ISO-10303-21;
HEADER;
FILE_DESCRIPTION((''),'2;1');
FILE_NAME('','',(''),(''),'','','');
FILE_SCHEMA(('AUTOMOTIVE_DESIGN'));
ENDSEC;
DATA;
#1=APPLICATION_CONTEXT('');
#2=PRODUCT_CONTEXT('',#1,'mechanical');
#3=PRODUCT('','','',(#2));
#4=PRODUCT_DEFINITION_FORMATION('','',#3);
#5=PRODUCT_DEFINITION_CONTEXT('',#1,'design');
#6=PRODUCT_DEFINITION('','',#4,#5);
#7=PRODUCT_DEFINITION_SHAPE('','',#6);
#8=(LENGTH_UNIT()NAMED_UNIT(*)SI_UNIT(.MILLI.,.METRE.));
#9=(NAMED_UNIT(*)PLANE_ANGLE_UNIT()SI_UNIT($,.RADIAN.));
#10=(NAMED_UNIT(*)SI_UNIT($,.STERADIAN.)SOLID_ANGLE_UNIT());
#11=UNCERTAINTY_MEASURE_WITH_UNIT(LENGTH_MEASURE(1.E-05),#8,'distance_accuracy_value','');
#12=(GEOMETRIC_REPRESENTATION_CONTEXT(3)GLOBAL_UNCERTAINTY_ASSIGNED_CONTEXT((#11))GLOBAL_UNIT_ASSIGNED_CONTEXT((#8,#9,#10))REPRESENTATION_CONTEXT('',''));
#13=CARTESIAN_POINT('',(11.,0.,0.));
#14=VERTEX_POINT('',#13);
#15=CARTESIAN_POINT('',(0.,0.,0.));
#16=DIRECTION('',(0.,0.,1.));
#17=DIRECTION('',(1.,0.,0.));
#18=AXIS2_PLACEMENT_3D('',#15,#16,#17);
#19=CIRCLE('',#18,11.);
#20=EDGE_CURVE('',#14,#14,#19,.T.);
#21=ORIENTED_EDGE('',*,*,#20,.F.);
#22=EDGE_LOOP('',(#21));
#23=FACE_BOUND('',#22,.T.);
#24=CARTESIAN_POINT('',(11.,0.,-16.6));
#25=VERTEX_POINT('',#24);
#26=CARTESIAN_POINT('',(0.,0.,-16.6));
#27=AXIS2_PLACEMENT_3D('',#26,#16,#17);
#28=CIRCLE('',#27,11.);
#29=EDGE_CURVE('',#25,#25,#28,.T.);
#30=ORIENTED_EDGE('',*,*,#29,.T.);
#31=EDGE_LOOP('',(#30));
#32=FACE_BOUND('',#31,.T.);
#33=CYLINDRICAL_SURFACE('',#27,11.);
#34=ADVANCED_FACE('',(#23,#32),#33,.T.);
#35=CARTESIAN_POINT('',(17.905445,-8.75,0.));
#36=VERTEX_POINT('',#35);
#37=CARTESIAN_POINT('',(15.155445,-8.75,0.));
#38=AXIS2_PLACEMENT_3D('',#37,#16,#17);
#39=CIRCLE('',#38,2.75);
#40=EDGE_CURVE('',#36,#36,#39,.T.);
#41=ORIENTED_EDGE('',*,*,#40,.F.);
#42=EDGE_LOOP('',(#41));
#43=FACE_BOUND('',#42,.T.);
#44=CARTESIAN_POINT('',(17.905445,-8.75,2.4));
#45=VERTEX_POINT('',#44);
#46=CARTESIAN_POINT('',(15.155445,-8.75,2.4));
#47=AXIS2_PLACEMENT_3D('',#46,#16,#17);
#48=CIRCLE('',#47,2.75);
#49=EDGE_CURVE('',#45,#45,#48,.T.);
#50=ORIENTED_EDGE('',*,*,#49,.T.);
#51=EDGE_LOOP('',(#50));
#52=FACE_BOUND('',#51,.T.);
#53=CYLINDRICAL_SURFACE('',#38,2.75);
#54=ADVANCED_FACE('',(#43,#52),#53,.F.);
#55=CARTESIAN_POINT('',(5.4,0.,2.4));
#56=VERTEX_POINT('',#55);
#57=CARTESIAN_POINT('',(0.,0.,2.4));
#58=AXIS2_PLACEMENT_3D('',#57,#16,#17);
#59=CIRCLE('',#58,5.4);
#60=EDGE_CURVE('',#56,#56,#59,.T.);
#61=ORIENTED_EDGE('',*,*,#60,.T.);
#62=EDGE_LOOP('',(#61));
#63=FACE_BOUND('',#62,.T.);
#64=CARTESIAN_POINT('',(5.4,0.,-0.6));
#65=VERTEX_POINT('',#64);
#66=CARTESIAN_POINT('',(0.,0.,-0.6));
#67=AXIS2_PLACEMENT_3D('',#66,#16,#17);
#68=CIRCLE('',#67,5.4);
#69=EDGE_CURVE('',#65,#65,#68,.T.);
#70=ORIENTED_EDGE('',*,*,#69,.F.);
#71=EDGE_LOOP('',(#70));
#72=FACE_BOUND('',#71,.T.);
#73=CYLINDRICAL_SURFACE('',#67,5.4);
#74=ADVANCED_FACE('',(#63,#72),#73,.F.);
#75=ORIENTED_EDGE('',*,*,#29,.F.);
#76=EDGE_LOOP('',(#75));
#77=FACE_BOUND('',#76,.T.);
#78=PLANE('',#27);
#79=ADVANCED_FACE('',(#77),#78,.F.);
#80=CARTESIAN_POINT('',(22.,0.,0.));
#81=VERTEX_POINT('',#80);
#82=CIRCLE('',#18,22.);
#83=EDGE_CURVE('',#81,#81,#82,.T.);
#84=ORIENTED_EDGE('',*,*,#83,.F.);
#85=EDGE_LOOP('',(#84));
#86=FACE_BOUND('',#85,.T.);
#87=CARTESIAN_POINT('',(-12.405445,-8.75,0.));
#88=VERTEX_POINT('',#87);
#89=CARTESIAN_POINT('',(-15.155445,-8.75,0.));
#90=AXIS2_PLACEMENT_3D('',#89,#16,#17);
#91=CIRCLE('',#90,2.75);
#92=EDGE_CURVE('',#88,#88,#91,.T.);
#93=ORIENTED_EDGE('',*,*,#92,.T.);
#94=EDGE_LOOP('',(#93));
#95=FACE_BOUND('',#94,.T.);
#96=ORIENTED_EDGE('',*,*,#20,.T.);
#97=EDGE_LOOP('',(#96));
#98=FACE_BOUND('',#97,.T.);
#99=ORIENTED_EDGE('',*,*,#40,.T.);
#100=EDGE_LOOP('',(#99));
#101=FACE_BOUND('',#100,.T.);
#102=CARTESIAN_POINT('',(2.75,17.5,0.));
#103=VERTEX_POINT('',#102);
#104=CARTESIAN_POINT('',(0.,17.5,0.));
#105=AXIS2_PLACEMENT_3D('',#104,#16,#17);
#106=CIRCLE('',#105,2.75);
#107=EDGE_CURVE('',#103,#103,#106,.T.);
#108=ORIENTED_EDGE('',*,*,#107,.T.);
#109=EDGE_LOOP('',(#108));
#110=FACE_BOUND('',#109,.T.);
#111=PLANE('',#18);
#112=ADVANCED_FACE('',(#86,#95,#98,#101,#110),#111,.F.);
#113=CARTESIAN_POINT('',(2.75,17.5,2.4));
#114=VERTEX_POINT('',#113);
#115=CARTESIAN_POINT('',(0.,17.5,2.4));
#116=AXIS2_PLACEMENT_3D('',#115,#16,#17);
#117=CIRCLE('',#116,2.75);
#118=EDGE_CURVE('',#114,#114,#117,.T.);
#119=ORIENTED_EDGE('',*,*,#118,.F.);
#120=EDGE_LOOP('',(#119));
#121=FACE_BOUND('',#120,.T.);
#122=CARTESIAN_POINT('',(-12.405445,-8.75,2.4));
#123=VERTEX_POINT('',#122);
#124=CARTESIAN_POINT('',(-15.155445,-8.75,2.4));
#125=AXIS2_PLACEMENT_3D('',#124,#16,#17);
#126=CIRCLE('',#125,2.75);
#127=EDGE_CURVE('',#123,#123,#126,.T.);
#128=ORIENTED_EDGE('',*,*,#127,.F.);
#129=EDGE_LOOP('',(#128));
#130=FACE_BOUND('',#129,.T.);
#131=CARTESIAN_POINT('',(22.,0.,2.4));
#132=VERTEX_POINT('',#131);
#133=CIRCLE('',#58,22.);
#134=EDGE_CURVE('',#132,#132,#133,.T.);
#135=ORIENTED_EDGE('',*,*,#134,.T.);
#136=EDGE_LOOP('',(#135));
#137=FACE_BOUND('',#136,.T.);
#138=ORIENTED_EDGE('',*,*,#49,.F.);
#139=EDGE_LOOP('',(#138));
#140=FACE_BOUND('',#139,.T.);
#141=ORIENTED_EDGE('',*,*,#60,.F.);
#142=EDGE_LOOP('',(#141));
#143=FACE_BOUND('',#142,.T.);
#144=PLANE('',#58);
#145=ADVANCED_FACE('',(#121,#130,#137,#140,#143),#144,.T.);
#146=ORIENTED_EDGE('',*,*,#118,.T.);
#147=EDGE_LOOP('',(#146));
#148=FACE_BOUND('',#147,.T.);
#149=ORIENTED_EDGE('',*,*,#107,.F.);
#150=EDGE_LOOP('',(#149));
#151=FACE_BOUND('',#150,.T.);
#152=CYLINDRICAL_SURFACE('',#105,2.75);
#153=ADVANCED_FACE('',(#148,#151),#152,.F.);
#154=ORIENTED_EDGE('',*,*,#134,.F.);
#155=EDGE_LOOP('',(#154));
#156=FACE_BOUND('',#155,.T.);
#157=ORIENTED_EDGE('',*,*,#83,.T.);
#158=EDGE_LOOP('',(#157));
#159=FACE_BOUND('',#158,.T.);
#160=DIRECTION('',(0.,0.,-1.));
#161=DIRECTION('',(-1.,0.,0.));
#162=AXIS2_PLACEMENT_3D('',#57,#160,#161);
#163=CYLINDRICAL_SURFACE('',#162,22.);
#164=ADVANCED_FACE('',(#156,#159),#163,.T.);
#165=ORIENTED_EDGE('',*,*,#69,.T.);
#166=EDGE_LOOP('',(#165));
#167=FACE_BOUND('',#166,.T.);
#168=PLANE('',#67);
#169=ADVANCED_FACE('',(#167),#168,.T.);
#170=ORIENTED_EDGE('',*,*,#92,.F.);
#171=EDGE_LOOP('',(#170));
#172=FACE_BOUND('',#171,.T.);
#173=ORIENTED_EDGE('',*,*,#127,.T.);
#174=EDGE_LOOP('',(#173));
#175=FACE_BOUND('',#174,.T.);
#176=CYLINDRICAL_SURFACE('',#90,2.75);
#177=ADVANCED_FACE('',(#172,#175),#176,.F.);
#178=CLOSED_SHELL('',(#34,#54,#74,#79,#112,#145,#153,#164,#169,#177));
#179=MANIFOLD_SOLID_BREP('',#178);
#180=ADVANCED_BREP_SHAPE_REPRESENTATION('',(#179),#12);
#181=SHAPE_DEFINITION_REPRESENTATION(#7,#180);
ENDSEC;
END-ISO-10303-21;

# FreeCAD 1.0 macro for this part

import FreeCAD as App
import Part
import Sketcher
from FreeCAD import Vector
Q = App.Units.Quantity

doc = App.newDocument("Part")
body = doc.addObject("PartDesign::Body", "Body")

sketch1 = body.newObject("Sketcher::SketchObject", "Sketch")
sketch1.AttachmentSupport = (doc.getObject("XY_Plane"), [""])
sketch1.MapMode = "FlatFace"
sketch1.addGeometry([
    Part.Circle(Vector(0, 0, 0), Vector(0, 0, 1), 22),
    Part.Circle(Vector(0, 0, 0), Vector(0, 0, 1), 11),
], False)
sketch1.addConstraint([
    Sketcher.Constraint("Coincident", 0, 3, -1, 1),
    Sketcher.Constraint("Coincident", 1, 3, -1, 1),
    Sketcher.Constraint("Diameter", 0, Q("44 mm")),
    Sketcher.Constraint("Diameter", 1, Q("22 mm")),
])
pad1 = body.newObject("PartDesign::Pad", "Pad")
pad1.Profile = sketch1
pad1.Length = 2.4

sketch2 = body.newObject("Sketcher::SketchObject", "Sketch001")
sketch2.AttachmentSupport = (doc.getObject("XY_Plane"), [""])
sketch2.MapMode = "FlatFace"
sketch2.AttachmentOffset = App.Placement(Vector(0, 0, 2.4), App.Rotation())
sketch2.addGeometry([
    Part.Circle(Vector(0, 17.5, 0), Vector(0, 0, 1), 2.8),
    Part.Circle(Vector(15.2, -8.8, 0), Vector(0, 0, 1), 2.8),
    Part.Circle(Vector(-15.2, -8.8, 0), Vector(0, 0, 1), 2.8),
], False)
sketch2.addConstraint([
    Sketcher.Constraint("Equal", 0, 1),
    Sketcher.Constraint("Equal", 1, 2),
    Sketcher.Constraint("Symmetric", 1, 3, 2, 3, -2),
    Sketcher.Constraint("PointOnObject", 0, 3, -2),
    Sketcher.Constraint("Diameter", 0, Q("5.5 mm")),
    Sketcher.Constraint("DistanceY", -1, 1, 0, 3, Q("17.5 mm")),
    Sketcher.Constraint("DistanceY", 1, 3, -1, 1, Q("8.75 mm")),
    Sketcher.Constraint("DistanceX", 2, 3, 1, 3, Q("30.310889 mm")),
])
pocket1 = body.newObject("PartDesign::Pocket", "Pocket")
pocket1.Profile = sketch2
pocket1.Type = "ThroughAll"

sketch3 = body.newObject("Sketcher::SketchObject", "Sketch002")
sketch3.AttachmentSupport = (doc.getObject("XY_Plane"), [""])
sketch3.MapMode = "FlatFace"
sketch3.AttachmentOffset = App.Placement(Vector(0, 0, -16.6), App.Rotation())
sketch3.addGeometry(Part.Circle(Vector(0, 0, 0), Vector(0, 0, 1), 11), False)
sketch3.addConstraint([
    Sketcher.Constraint("Coincident", 0, 3, -1, 1),
    Sketcher.Constraint("Diameter", 0, Q("22 mm")),
])
pad2 = body.newObject("PartDesign::Pad", "Pad001")
pad2.Profile = sketch3
pad2.Length = 19

sketch4 = body.newObject("Sketcher::SketchObject", "Sketch003")
sketch4.AttachmentSupport = (doc.getObject("XY_Plane"), [""])
sketch4.MapMode = "FlatFace"
sketch4.AttachmentOffset = App.Placement(Vector(0, 0, 2.4), App.Rotation())
sketch4.addGeometry(Part.Circle(Vector(0, 0, 0), Vector(0, 0, 1), 5), False)
sketch4.addConstraint([
    Sketcher.Constraint("Coincident", 0, 3, -1, 1),
    Sketcher.Constraint("Diameter", 0, Q("10.8 mm")),
])
pocket2 = body.newObject("PartDesign::Pocket", "Pocket001")
pocket2.Profile = sketch4
pocket2.Length = 3

doc.recompute()
